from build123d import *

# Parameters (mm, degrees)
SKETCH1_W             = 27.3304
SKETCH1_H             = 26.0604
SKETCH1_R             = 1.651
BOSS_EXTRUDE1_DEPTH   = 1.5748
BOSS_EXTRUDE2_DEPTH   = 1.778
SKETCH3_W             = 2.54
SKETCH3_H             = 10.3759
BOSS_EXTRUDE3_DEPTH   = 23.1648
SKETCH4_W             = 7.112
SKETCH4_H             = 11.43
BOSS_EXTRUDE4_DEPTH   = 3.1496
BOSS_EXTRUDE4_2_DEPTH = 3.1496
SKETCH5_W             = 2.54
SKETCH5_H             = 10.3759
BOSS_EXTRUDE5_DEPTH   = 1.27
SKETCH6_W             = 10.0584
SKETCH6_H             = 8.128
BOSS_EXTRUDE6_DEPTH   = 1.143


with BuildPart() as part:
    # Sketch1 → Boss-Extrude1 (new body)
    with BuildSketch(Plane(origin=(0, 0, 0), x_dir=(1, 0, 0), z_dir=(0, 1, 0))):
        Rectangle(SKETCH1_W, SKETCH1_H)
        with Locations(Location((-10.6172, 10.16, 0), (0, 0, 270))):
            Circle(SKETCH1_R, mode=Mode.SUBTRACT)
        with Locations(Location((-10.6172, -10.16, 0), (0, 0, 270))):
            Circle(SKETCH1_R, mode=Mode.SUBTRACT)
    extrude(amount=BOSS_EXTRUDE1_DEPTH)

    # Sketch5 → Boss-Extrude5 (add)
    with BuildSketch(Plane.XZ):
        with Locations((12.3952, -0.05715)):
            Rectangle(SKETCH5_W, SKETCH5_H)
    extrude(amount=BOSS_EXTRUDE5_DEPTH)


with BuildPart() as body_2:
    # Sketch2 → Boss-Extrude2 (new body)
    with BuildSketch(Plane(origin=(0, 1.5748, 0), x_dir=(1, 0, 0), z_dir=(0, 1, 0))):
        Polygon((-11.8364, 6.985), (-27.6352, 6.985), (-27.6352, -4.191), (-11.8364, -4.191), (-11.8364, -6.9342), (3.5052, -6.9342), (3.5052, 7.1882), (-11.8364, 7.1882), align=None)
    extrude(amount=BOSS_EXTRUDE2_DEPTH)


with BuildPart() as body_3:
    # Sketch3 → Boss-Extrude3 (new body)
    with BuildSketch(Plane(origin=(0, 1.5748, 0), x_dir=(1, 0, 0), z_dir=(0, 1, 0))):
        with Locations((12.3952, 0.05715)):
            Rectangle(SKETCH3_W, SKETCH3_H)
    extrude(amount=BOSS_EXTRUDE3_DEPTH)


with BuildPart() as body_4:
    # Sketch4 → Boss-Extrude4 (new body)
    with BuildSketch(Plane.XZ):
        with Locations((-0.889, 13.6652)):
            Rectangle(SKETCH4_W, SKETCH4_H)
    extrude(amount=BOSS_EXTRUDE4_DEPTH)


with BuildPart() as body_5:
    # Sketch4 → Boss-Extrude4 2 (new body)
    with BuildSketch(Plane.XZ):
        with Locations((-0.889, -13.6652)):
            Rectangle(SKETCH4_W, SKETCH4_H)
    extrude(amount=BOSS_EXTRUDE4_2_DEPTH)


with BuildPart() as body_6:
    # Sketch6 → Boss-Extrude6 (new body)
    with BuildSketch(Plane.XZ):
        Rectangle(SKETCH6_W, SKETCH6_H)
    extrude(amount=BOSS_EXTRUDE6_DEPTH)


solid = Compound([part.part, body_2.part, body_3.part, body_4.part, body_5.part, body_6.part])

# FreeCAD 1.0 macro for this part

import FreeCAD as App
import Part
import Sketcher
Q = App.Units.Quantity

doc = App.newDocument("Part")
body = doc.addObject("PartDesign::Body", "Body")

sketch1 = body.newObject("Sketcher::SketchObject", "Sketch")
sketch1.AttachmentSupport = (doc.getObject("XZ_Plane"), [""])
sketch1.MapMode = "FlatFace"
sketch1.addGeometry(Part.LineSegment(App.Vector(-13.6652, -13.0302, 0), App.Vector(-13.6652, 13.0302, 0)), False)
sketch1.addGeometry(Part.LineSegment(App.Vector(-13.6652, 13.0302, 0), App.Vector(13.6652, 13.0302, 0)), False)
sketch1.addGeometry(Part.LineSegment(App.Vector(13.6652, 13.0302, 0), App.Vector(13.6652, -13.0302, 0)), False)
sketch1.addGeometry(Part.LineSegment(App.Vector(13.6652, -13.0302, 0), App.Vector(-13.6652, -13.0302, 0)), False)
sketch1.addGeometry(Part.Circle(App.Vector(-10.6172, 10.16, 0), App.Vector(0, 0, 1), 1.651), False)
sketch1.addGeometry(Part.Circle(App.Vector(-10.6172, -10.16, 0), App.Vector(0, 0, 1), 1.651), False)
sketch1.addConstraint(Sketcher.Constraint("Coincident", 0, 2, 1, 1))
sketch1.addConstraint(Sketcher.Constraint("Coincident", 1, 2, 2, 1))
sketch1.addConstraint(Sketcher.Constraint("Coincident", 2, 2, 3, 1))
sketch1.addConstraint(Sketcher.Constraint("Coincident", 3, 2, 0, 1))
sketch1.addConstraint(Sketcher.Constraint("Vertical", 0))
sketch1.addConstraint(Sketcher.Constraint("Horizontal", 1))
sketch1.addConstraint(Sketcher.Constraint("Vertical", 2))
sketch1.addConstraint(Sketcher.Constraint("Horizontal", 3))
sketch1.addConstraint(Sketcher.Constraint("Equal", 4, 5))
sketch1.addConstraint(Sketcher.Constraint("Symmetric", 0, 2, 2, 2, -1, 1))
sketch1.addConstraint(Sketcher.Constraint("Symmetric", 4, 3, 5, 3, -1))
sketch1.addConstraint(Sketcher.Constraint("Diameter", 4, Q("0.13 in")))
sketch1.addConstraint(Sketcher.Constraint("DistanceY", -1, 1, 4, 3, Q("0.4 in")))
sketch1.addConstraint(Sketcher.Constraint("DistanceX", 1, 1, 1, 2, Q("1.076 in")))
sketch1.addConstraint(Sketcher.Constraint("DistanceY", 0, 1, 0, 2, Q("1.026 in")))
sketch1.addConstraint(Sketcher.Constraint("DistanceX", 0, 2, 4, 3, Q("0.12 in")))
pad1 = body.newObject("PartDesign::Pad", "Pad")
pad1.Profile = sketch1
pad1.Length = Q("0.062 in")
pad1.Reversed = True

sketch2 = body.newObject("Sketcher::SketchObject", "Sketch001")
sketch2.AttachmentSupport = (doc.getObject("XZ_Plane"), [""])
sketch2.MapMode = "FlatFace"
sketch2.addGeometry(Part.LineSegment(App.Vector(11.1252, 5.1308, 0), App.Vector(11.1252, -5.2451, 0)), False)
sketch2.addGeometry(Part.LineSegment(App.Vector(11.1252, -5.2451, 0), App.Vector(13.6652, -5.2451, 0)), False)
sketch2.addGeometry(Part.LineSegment(App.Vector(13.6652, -5.2451, 0), App.Vector(13.6652, 5.1308, 0)), False)
sketch2.addGeometry(Part.LineSegment(App.Vector(13.6652, 5.1308, 0), App.Vector(11.1252, 5.1308, 0)), False)
sketch2.addConstraint(Sketcher.Constraint("Coincident", 0, 2, 1, 1))
sketch2.addConstraint(Sketcher.Constraint("Coincident", 1, 2, 2, 1))
sketch2.addConstraint(Sketcher.Constraint("Coincident", 2, 2, 3, 1))
sketch2.addConstraint(Sketcher.Constraint("Coincident", 3, 2, 0, 1))
sketch2.addConstraint(Sketcher.Constraint("Vertical", 0))
sketch2.addConstraint(Sketcher.Constraint("Horizontal", 1))
sketch2.addConstraint(Sketcher.Constraint("Vertical", 2))
sketch2.addConstraint(Sketcher.Constraint("Horizontal", 3))
sketch2.addConstraint(Sketcher.Constraint("DistanceX", 1, 1, 1, 2, Q("0.1 in")))
sketch2.addConstraint(Sketcher.Constraint("DistanceY", 0, 2, 0, 1, Q("0.4085 in")))
sketch2.addConstraint(Sketcher.Constraint("DistanceX", -1, 1, 0, 2, Q("0.438 in")))
sketch2.addConstraint(Sketcher.Constraint("DistanceY", -1, 1, 2, 2, Q("0.202 in")))
pad2 = body.newObject("PartDesign::Pad", "Pad001")
pad2.Profile = sketch2
pad2.Length = Q("0.05 in")
body2 = doc.addObject("PartDesign::Body", "Body001")

sketch3 = body2.newObject("Sketcher::SketchObject", "Sketch002")
sketch3.AttachmentSupport = (doc.getObject("XZ_Plane001"), [""])
sketch3.MapMode = "FlatFace"
sketch3.AttachmentOffset = App.Placement(App.Vector(0, 0, -0.062 * 25.4), App.Rotation())
sketch3.addGeometry(Part.LineSegment(App.Vector(-11.8364, -6.985, 0), App.Vector(-27.6352, -6.985, 0)), False)
sketch3.addGeometry(Part.LineSegment(App.Vector(-27.6352, -6.985, 0), App.Vector(-27.6352, 4.191, 0)), False)
sketch3.addGeometry(Part.LineSegment(App.Vector(-27.6352, 4.191, 0), App.Vector(-11.8364, 4.191, 0)), False)
sketch3.addGeometry(Part.LineSegment(App.Vector(-11.8364, 4.191, 0), App.Vector(-11.8364, 6.9342, 0)), False)
sketch3.addGeometry(Part.LineSegment(App.Vector(-11.8364, 6.9342, 0), App.Vector(3.5052, 6.9342, 0)), False)
sketch3.addGeometry(Part.LineSegment(App.Vector(3.5052, 6.9342, 0), App.Vector(3.5052, -7.1882, 0)), False)
sketch3.addGeometry(Part.LineSegment(App.Vector(3.5052, -7.1882, 0), App.Vector(-11.8364, -7.1882, 0)), False)
sketch3.addGeometry(Part.LineSegment(App.Vector(-11.8364, -7.1882, 0), App.Vector(-11.8364, -6.985, 0)), False)
sketch3.addConstraint(Sketcher.Constraint("Coincident", 0, 2, 1, 1))
sketch3.addConstraint(Sketcher.Constraint("Coincident", 1, 2, 2, 1))
sketch3.addConstraint(Sketcher.Constraint("Coincident", 2, 2, 3, 1))
sketch3.addConstraint(Sketcher.Constraint("Coincident", 3, 2, 4, 1))
sketch3.addConstraint(Sketcher.Constraint("Coincident", 4, 2, 5, 1))
sketch3.addConstraint(Sketcher.Constraint("Coincident", 5, 2, 6, 1))
sketch3.addConstraint(Sketcher.Constraint("Coincident", 6, 2, 7, 1))
sketch3.addConstraint(Sketcher.Constraint("Coincident", 7, 2, 0, 1))
sketch3.addConstraint(Sketcher.Constraint("Horizontal", 0))
sketch3.addConstraint(Sketcher.Constraint("Vertical", 1))
sketch3.addConstraint(Sketcher.Constraint("Horizontal", 2))
sketch3.addConstraint(Sketcher.Constraint("Vertical", 3))
sketch3.addConstraint(Sketcher.Constraint("Horizontal", 4))
sketch3.addConstraint(Sketcher.Constraint("Vertical", 5))
sketch3.addConstraint(Sketcher.Constraint("Horizontal", 6))
sketch3.addConstraint(Sketcher.Constraint("Vertical", 7))
sketch3.addConstraint(Sketcher.Constraint("Vertical", 3, 2, 6, 2))
sketch3.addConstraint(Sketcher.Constraint("DistanceY", 1, 1, 1, 2, Q("0.44 in")))
sketch3.addConstraint(Sketcher.Constraint("DistanceX", 0, 2, 0, 1, Q("0.622 in")))
sketch3.addConstraint(Sketcher.Constraint("DistanceX", 4, 1, 4, 2, Q("0.604 in")))
sketch3.addConstraint(Sketcher.Constraint("DistanceY", 3, 1, 3, 2, Q("0.108 in")))
sketch3.addConstraint(Sketcher.Constraint("DistanceY", 5, 2, 5, 1, Q("0.556 in")))
sketch3.addConstraint(Sketcher.Constraint("DistanceX", 0, 2, -1, 1, Q("1.088 in")))
sketch3.addConstraint(Sketcher.Constraint("DistanceY", 0, 2, -1, 1, Q("0.275 in")))
pad3 = body2.newObject("PartDesign::Pad", "Pad002")
pad3.Profile = sketch3
pad3.Length = Q("0.07 in")
pad3.Reversed = True
body3 = doc.addObject("PartDesign::Body", "Body002")

sketch4 = body3.newObject("Sketcher::SketchObject", "Sketch003")
sketch4.AttachmentSupport = (doc.getObject("XZ_Plane002"), [""])
sketch4.MapMode = "FlatFace"
sketch4.AttachmentOffset = App.Placement(App.Vector(0, 0, -0.062 * 25.4), App.Rotation())
sketch4.addGeometry(Part.LineSegment(App.Vector(11.1252, -5.2451, 0), App.Vector(11.1252, 5.1308, 0)), False)
sketch4.addGeometry(Part.LineSegment(App.Vector(11.1252, 5.1308, 0), App.Vector(13.6652, 5.1308, 0)), False)
sketch4.addGeometry(Part.LineSegment(App.Vector(13.6652, 5.1308, 0), App.Vector(13.6652, -5.2451, 0)), False)
sketch4.addGeometry(Part.LineSegment(App.Vector(13.6652, -5.2451, 0), App.Vector(11.1252, -5.2451, 0)), False)
sketch4.addConstraint(Sketcher.Constraint("Coincident", 0, 2, 1, 1))
sketch4.addConstraint(Sketcher.Constraint("Coincident", 1, 2, 2, 1))
sketch4.addConstraint(Sketcher.Constraint("Coincident", 2, 2, 3, 1))
sketch4.addConstraint(Sketcher.Constraint("Coincident", 3, 2, 0, 1))
sketch4.addConstraint(Sketcher.Constraint("Vertical", 0))
sketch4.addConstraint(Sketcher.Constraint("Horizontal", 1))
sketch4.addConstraint(Sketcher.Constraint("Vertical", 2))
sketch4.addConstraint(Sketcher.Constraint("Horizontal", 3))
sketch4.addConstraint(Sketcher.Constraint("DistanceX", 1, 1, 1, 2, Q("0.1 in")))
sketch4.addConstraint(Sketcher.Constraint("DistanceY", 0, 1, 0, 2, Q("0.4085 in")))
sketch4.addConstraint(Sketcher.Constraint("DistanceX", -1, 1, 0, 2, Q("0.438 in")))
sketch4.addConstraint(Sketcher.Constraint("DistanceY", -1, 1, 0, 2, Q("0.202 in")))
pad4 = body3.newObject("PartDesign::Pad", "Pad003")
pad4.Profile = sketch4
pad4.Length = Q("0.912 in")
pad4.Reversed = True
body4 = doc.addObject("PartDesign::Body", "Body003")

sketch5 = body4.newObject("Sketcher::SketchObject", "Sketch004")
sketch5.AttachmentSupport = (doc.getObject("XZ_Plane003"), [""])
sketch5.MapMode = "FlatFace"
sketch5.addGeometry(Part.LineSegment(App.Vector(-4.445, 19.3802, 0), App.Vector(-4.445, 7.9502, 0)), False)
sketch5.addGeometry(Part.LineSegment(App.Vector(-4.445, 7.9502, 0), App.Vector(2.667, 7.9502, 0)), False)
sketch5.addGeometry(Part.LineSegment(App.Vector(2.667, 7.9502, 0), App.Vector(2.667, 19.3802, 0)), False)
sketch5.addGeometry(Part.LineSegment(App.Vector(2.667, 19.3802, 0), App.Vector(-4.445, 19.3802, 0)), False)
sketch5.addConstraint(Sketcher.Constraint("Coincident", 0, 2, 1, 1))
sketch5.addConstraint(Sketcher.Constraint("Coincident", 1, 2, 2, 1))
sketch5.addConstraint(Sketcher.Constraint("Coincident", 2, 2, 3, 1))
sketch5.addConstraint(Sketcher.Constraint("Coincident", 3, 2, 0, 1))
sketch5.addConstraint(Sketcher.Constraint("Vertical", 0))
sketch5.addConstraint(Sketcher.Constraint("Horizontal", 1))
sketch5.addConstraint(Sketcher.Constraint("Vertical", 2))
sketch5.addConstraint(Sketcher.Constraint("Horizontal", 3))
sketch5.addConstraint(Sketcher.Constraint("DistanceX", 1, 1, 1, 2, Q("0.28 in")))
sketch5.addConstraint(Sketcher.Constraint("DistanceY", 0, 2, 0, 1, Q("0.45 in")))
sketch5.addConstraint(Sketcher.Constraint("DistanceX", 0, 2, -1, 1, Q("0.175 in")))
sketch5.addConstraint(Sketcher.Constraint("DistanceY", -1, 1, 0, 2, Q("0.313 in")))
pad5 = body4.newObject("PartDesign::Pad", "Pad004")
pad5.Profile = sketch5
pad5.Length = Q("0.124 in")
body5 = doc.addObject("PartDesign::Body", "Body004")

sketch6 = body5.newObject("Sketcher::SketchObject", "Sketch005")
sketch6.AttachmentSupport = (doc.getObject("XZ_Plane004"), [""])
sketch6.MapMode = "FlatFace"
sketch6.addGeometry(Part.LineSegment(App.Vector(-4.445, -7.9502, 0), App.Vector(-4.445, -19.3802, 0)), False)
sketch6.addGeometry(Part.LineSegment(App.Vector(-4.445, -19.3802, 0), App.Vector(2.667, -19.3802, 0)), False)
sketch6.addGeometry(Part.LineSegment(App.Vector(2.667, -19.3802, 0), App.Vector(2.667, -7.9502, 0)), False)
sketch6.addGeometry(Part.LineSegment(App.Vector(2.667, -7.9502, 0), App.Vector(-4.445, -7.9502, 0)), False)
sketch6.addConstraint(Sketcher.Constraint("Coincident", 0, 2, 1, 1))
sketch6.addConstraint(Sketcher.Constraint("Coincident", 1, 2, 2, 1))
sketch6.addConstraint(Sketcher.Constraint("Coincident", 2, 2, 3, 1))
sketch6.addConstraint(Sketcher.Constraint("Coincident", 3, 2, 0, 1))
sketch6.addConstraint(Sketcher.Constraint("Vertical", 0))
sketch6.addConstraint(Sketcher.Constraint("Horizontal", 1))
sketch6.addConstraint(Sketcher.Constraint("Vertical", 2))
sketch6.addConstraint(Sketcher.Constraint("Horizontal", 3))
sketch6.addConstraint(Sketcher.Constraint("DistanceX", 1, 1, 1, 2, Q("0.28 in")))
sketch6.addConstraint(Sketcher.Constraint("DistanceY", 0, 2, 0, 1, Q("0.45 in")))
sketch6.addConstraint(Sketcher.Constraint("DistanceX", 0, 2, -1, 1, Q("0.175 in")))
sketch6.addConstraint(Sketcher.Constraint("DistanceY", 0, 2, -1, 1, Q("0.763 in")))
pad6 = body5.newObject("PartDesign::Pad", "Pad005")
pad6.Profile = sketch6
pad6.Length = Q("0.124 in")
body6 = doc.addObject("PartDesign::Body", "Body005")

sketch7 = body6.newObject("Sketcher::SketchObject", "Sketch006")
sketch7.AttachmentSupport = (doc.getObject("XZ_Plane005"), [""])
sketch7.MapMode = "FlatFace"
sketch7.addGeometry(Part.LineSegment(App.Vector(-5.0292, 4.064, 0), App.Vector(-5.0292, -4.064, 0)), False)
sketch7.addGeometry(Part.LineSegment(App.Vector(-5.0292, -4.064, 0), App.Vector(5.0292, -4.064, 0)), False)
sketch7.addGeometry(Part.LineSegment(App.Vector(5.0292, -4.064, 0), App.Vector(5.0292, 4.064, 0)), False)
sketch7.addGeometry(Part.LineSegment(App.Vector(5.0292, 4.064, 0), App.Vector(-5.0292, 4.064, 0)), False)
sketch7.addConstraint(Sketcher.Constraint("Coincident", 0, 2, 1, 1))
sketch7.addConstraint(Sketcher.Constraint("Coincident", 1, 2, 2, 1))
sketch7.addConstraint(Sketcher.Constraint("Coincident", 2, 2, 3, 1))
sketch7.addConstraint(Sketcher.Constraint("Coincident", 3, 2, 0, 1))
sketch7.addConstraint(Sketcher.Constraint("Vertical", 0))
sketch7.addConstraint(Sketcher.Constraint("Horizontal", 1))
sketch7.addConstraint(Sketcher.Constraint("Vertical", 2))
sketch7.addConstraint(Sketcher.Constraint("Horizontal", 3))
sketch7.addConstraint(Sketcher.Constraint("Symmetric", 0, 2, 2, 2, -1, 1))
sketch7.addConstraint(Sketcher.Constraint("DistanceY", 0, 2, 0, 1, Q("0.32 in")))
sketch7.addConstraint(Sketcher.Constraint("DistanceX", 1, 1, 1, 2, Q("0.396 in")))
pad7 = body6.newObject("PartDesign::Pad", "Pad006")
pad7.Profile = sketch7
pad7.Length = Q("0.045 in")

doc.recompute()
